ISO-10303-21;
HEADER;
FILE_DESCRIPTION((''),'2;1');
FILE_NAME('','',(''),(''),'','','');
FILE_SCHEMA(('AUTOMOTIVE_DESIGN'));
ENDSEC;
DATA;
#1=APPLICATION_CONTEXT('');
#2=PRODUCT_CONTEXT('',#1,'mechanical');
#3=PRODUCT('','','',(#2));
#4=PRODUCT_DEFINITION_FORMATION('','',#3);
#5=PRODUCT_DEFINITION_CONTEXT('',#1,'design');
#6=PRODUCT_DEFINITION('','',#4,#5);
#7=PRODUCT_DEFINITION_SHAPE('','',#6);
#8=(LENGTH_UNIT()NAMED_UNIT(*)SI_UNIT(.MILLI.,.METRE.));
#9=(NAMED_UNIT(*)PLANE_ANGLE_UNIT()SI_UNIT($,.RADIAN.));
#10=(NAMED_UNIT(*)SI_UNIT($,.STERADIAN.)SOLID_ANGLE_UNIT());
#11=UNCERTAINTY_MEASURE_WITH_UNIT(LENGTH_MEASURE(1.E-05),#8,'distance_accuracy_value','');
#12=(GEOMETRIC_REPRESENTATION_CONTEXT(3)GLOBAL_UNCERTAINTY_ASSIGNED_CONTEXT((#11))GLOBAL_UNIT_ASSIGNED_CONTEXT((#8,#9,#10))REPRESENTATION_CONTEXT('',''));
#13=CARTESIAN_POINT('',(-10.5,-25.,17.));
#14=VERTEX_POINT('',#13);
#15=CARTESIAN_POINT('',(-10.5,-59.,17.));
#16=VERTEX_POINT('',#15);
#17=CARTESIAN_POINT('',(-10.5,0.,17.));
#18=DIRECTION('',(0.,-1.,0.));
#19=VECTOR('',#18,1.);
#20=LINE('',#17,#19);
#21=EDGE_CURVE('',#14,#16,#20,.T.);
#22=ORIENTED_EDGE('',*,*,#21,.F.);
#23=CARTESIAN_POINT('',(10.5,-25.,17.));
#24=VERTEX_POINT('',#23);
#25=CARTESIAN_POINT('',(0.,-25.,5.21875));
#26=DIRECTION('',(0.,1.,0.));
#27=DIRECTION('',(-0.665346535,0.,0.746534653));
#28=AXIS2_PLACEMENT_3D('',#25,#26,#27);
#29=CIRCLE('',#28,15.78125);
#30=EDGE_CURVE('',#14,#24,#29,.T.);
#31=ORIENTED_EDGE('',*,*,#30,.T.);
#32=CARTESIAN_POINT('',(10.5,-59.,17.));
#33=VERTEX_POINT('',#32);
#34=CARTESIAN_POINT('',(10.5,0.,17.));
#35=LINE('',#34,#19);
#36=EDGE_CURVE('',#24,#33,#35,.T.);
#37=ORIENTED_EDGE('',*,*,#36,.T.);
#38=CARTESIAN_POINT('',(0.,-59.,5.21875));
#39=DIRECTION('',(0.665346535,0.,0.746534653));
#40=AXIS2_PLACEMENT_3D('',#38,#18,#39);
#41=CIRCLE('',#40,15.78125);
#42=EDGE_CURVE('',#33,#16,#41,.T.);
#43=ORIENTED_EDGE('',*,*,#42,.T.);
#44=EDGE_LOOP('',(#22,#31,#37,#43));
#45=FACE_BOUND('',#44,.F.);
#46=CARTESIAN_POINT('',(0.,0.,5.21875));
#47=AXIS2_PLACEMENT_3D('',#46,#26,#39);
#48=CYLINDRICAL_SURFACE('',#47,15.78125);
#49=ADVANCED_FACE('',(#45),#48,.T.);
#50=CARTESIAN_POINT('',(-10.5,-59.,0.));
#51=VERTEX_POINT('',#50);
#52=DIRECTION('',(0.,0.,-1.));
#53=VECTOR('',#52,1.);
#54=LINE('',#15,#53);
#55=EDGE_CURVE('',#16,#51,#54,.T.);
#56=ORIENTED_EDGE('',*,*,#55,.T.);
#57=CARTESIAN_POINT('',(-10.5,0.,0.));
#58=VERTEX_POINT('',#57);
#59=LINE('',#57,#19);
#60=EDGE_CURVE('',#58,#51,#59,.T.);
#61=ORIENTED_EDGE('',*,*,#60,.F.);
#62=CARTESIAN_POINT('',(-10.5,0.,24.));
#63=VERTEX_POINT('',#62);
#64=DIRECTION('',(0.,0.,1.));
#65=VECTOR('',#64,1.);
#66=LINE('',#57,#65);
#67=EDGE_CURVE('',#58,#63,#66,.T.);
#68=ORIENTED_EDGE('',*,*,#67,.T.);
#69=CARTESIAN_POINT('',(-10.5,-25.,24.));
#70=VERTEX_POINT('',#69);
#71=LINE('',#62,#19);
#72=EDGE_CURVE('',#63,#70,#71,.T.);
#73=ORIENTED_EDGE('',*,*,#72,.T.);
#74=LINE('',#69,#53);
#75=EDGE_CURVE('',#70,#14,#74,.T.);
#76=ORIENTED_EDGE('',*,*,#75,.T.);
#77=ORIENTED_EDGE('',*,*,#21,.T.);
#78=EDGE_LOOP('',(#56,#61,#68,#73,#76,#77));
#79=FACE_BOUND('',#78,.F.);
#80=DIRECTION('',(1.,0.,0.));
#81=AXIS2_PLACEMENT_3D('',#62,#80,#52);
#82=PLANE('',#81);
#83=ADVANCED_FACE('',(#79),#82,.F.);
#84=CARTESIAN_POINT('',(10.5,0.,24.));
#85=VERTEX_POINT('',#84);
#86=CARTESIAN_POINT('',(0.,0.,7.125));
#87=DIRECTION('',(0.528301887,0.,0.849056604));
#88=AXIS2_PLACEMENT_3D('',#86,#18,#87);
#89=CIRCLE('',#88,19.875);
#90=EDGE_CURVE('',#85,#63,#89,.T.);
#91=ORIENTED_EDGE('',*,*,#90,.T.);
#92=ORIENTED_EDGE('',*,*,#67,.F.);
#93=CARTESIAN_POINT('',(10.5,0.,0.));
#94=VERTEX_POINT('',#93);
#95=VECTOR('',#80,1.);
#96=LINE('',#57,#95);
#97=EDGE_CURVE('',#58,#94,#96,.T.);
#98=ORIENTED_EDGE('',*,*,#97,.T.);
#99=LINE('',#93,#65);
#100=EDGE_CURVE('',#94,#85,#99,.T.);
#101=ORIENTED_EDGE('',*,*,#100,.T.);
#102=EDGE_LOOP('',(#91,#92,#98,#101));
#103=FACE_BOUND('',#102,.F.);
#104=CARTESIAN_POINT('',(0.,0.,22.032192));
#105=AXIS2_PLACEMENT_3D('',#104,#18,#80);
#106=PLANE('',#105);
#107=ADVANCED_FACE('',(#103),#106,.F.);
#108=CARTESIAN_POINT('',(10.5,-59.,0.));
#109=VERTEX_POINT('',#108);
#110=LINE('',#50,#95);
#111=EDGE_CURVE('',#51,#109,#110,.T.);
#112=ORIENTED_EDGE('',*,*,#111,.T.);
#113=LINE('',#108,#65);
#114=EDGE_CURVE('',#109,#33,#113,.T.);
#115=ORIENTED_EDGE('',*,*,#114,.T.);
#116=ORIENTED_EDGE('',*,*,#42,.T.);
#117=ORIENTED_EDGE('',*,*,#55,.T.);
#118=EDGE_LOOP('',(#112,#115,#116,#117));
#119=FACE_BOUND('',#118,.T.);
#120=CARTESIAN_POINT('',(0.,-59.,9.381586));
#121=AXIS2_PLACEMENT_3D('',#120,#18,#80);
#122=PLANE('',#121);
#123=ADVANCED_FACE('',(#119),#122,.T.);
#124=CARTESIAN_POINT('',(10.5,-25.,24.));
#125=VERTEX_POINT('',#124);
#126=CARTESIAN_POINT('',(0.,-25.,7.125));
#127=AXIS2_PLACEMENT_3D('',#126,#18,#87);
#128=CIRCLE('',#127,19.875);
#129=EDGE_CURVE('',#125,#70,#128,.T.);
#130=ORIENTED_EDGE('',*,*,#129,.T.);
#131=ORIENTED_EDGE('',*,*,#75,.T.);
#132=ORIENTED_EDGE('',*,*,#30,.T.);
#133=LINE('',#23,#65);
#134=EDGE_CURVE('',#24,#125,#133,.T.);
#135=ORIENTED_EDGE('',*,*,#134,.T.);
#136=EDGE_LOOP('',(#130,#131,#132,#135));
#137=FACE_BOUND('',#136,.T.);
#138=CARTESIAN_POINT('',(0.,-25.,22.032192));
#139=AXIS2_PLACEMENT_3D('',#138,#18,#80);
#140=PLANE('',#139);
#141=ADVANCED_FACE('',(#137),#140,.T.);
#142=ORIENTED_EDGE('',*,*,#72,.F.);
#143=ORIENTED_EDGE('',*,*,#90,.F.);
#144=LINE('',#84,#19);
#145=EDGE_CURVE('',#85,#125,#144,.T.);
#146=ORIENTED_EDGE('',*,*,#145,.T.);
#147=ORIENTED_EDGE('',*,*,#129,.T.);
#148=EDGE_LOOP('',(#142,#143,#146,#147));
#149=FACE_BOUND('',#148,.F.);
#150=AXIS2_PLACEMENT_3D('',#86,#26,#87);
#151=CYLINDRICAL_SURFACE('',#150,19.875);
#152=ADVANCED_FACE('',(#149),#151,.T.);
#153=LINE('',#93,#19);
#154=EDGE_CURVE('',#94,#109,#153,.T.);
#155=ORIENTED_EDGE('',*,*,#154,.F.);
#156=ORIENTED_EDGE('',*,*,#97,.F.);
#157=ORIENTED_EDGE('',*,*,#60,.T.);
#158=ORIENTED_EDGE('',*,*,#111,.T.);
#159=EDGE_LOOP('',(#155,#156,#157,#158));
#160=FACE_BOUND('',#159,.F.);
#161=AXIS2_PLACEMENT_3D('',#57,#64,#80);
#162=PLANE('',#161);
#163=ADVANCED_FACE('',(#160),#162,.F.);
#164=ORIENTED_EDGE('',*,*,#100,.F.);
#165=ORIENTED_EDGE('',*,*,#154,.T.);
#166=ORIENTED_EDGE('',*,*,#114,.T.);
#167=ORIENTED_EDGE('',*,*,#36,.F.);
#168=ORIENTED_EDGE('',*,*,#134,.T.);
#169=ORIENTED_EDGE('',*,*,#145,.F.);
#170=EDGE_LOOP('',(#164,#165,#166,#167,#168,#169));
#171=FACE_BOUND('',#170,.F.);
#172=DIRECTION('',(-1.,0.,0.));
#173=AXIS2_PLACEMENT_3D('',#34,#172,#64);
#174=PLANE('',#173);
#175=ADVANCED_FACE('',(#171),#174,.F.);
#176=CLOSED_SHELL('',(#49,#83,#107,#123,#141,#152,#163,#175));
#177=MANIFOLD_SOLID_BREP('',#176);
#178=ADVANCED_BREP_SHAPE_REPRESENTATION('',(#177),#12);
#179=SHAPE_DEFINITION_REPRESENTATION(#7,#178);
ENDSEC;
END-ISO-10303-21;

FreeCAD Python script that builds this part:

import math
import FreeCAD as App
import Part
import Sketcher

V = App.Vector

doc = App.newDocument("Part")
body = doc.addObject("PartDesign::Body", "Body")

# Sketch on XZ plane
sketch1 = body.newObject("Sketcher::SketchObject", "Sketch")
sketch1.AttachmentSupport = (doc.getObject("XZ_Plane"), [""])
sketch1.MapMode = "FlatFace"
sketch1.addGeometry([
    Part.LineSegment(V(-10, 0, 0), V(10, 0, 0)),
    Part.LineSegment(V(10, 0, 0), V(10, 17, 0)),
    Part.ArcOfCircle(Part.Circle(V(0, 5, 0), V(0, 0, 1), 16), math.radians(48), math.radians(132)),
    Part.LineSegment(V(-10, 17, 0), V(-10, 0, 0)),
], False)
sketch1.addConstraint([
    Sketcher.Constraint("Coincident", 0, 2, 1, 1),
    Sketcher.Constraint("Coincident", 1, 2, 2, 1),
    Sketcher.Constraint("Coincident", 2, 2, 3, 1),
    Sketcher.Constraint("Coincident", 3, 2, 0, 1),
    Sketcher.Constraint("Horizontal", 0),
    Sketcher.Constraint("Vertical", 1),
    Sketcher.Constraint("Vertical", 3),
    Sketcher.Constraint("Symmetric", 0, 2, 3, 2, -1, 1),
    Sketcher.Constraint("PointOnObject", 2, 3, -2),
    Sketcher.Constraint("DistanceX", 0, 1, 0, 2, 21.0),
    Sketcher.Constraint("DistanceY", 1, 1, 1, 2, 17.0),
    Sketcher.Constraint("Radius", 2, 15.78125),
])
pad1 = body.newObject("PartDesign::Pad", "Pad")
pad1.Profile = sketch1
pad1.Length = 59

# Sketch on XZ plane
sketch2 = body.newObject("Sketcher::SketchObject", "Sketch001")
sketch2.AttachmentSupport = (doc.getObject("XZ_Plane"), [""])
sketch2.MapMode = "FlatFace"
sketch2.addGeometry([
    Part.ArcOfCircle(Part.Circle(V(0, 5, 0), V(0, 0, 1), 16), math.radians(48), math.radians(132)),
    Part.LineSegment(V(10, 17, 0), V(10, 24, 0)),
    Part.ArcOfCircle(Part.Circle(V(0, 7, 0), V(0, 0, 1), 20), math.radians(58), math.radians(122)),
    Part.LineSegment(V(-10, 24, 0), V(-10, 17, 0)),
], False)
sketch2.addConstraint([
    Sketcher.Constraint("Coincident", 0, 1, 1, 1),
    Sketcher.Constraint("Coincident", 1, 2, 2, 1),
    Sketcher.Constraint("Coincident", 2, 2, 3, 1),
    Sketcher.Constraint("Coincident", 3, 2, 0, 2),
    Sketcher.Constraint("Vertical", 1),
    Sketcher.Constraint("Vertical", 3),
    Sketcher.Constraint("Symmetric", 1, 2, 2, 2, -2),
    Sketcher.Constraint("PointOnObject", 0, 3, -2),
    Sketcher.Constraint("DistanceY", 1, 1, 1, 2, 7.0),
    Sketcher.Constraint("DistanceY", -1, 1, 0, 1, 17.0),
    Sketcher.Constraint("Radius", 2, 19.875),
    Sketcher.Constraint("DistanceX", 2, 2, 1, 2, 21.0),
    Sketcher.Constraint("Radius", 0, 15.78125),
])
pad2 = body.newObject("PartDesign::Pad", "Pad001")
pad2.Profile = sketch2
pad2.Length = 25

doc.recompute()
